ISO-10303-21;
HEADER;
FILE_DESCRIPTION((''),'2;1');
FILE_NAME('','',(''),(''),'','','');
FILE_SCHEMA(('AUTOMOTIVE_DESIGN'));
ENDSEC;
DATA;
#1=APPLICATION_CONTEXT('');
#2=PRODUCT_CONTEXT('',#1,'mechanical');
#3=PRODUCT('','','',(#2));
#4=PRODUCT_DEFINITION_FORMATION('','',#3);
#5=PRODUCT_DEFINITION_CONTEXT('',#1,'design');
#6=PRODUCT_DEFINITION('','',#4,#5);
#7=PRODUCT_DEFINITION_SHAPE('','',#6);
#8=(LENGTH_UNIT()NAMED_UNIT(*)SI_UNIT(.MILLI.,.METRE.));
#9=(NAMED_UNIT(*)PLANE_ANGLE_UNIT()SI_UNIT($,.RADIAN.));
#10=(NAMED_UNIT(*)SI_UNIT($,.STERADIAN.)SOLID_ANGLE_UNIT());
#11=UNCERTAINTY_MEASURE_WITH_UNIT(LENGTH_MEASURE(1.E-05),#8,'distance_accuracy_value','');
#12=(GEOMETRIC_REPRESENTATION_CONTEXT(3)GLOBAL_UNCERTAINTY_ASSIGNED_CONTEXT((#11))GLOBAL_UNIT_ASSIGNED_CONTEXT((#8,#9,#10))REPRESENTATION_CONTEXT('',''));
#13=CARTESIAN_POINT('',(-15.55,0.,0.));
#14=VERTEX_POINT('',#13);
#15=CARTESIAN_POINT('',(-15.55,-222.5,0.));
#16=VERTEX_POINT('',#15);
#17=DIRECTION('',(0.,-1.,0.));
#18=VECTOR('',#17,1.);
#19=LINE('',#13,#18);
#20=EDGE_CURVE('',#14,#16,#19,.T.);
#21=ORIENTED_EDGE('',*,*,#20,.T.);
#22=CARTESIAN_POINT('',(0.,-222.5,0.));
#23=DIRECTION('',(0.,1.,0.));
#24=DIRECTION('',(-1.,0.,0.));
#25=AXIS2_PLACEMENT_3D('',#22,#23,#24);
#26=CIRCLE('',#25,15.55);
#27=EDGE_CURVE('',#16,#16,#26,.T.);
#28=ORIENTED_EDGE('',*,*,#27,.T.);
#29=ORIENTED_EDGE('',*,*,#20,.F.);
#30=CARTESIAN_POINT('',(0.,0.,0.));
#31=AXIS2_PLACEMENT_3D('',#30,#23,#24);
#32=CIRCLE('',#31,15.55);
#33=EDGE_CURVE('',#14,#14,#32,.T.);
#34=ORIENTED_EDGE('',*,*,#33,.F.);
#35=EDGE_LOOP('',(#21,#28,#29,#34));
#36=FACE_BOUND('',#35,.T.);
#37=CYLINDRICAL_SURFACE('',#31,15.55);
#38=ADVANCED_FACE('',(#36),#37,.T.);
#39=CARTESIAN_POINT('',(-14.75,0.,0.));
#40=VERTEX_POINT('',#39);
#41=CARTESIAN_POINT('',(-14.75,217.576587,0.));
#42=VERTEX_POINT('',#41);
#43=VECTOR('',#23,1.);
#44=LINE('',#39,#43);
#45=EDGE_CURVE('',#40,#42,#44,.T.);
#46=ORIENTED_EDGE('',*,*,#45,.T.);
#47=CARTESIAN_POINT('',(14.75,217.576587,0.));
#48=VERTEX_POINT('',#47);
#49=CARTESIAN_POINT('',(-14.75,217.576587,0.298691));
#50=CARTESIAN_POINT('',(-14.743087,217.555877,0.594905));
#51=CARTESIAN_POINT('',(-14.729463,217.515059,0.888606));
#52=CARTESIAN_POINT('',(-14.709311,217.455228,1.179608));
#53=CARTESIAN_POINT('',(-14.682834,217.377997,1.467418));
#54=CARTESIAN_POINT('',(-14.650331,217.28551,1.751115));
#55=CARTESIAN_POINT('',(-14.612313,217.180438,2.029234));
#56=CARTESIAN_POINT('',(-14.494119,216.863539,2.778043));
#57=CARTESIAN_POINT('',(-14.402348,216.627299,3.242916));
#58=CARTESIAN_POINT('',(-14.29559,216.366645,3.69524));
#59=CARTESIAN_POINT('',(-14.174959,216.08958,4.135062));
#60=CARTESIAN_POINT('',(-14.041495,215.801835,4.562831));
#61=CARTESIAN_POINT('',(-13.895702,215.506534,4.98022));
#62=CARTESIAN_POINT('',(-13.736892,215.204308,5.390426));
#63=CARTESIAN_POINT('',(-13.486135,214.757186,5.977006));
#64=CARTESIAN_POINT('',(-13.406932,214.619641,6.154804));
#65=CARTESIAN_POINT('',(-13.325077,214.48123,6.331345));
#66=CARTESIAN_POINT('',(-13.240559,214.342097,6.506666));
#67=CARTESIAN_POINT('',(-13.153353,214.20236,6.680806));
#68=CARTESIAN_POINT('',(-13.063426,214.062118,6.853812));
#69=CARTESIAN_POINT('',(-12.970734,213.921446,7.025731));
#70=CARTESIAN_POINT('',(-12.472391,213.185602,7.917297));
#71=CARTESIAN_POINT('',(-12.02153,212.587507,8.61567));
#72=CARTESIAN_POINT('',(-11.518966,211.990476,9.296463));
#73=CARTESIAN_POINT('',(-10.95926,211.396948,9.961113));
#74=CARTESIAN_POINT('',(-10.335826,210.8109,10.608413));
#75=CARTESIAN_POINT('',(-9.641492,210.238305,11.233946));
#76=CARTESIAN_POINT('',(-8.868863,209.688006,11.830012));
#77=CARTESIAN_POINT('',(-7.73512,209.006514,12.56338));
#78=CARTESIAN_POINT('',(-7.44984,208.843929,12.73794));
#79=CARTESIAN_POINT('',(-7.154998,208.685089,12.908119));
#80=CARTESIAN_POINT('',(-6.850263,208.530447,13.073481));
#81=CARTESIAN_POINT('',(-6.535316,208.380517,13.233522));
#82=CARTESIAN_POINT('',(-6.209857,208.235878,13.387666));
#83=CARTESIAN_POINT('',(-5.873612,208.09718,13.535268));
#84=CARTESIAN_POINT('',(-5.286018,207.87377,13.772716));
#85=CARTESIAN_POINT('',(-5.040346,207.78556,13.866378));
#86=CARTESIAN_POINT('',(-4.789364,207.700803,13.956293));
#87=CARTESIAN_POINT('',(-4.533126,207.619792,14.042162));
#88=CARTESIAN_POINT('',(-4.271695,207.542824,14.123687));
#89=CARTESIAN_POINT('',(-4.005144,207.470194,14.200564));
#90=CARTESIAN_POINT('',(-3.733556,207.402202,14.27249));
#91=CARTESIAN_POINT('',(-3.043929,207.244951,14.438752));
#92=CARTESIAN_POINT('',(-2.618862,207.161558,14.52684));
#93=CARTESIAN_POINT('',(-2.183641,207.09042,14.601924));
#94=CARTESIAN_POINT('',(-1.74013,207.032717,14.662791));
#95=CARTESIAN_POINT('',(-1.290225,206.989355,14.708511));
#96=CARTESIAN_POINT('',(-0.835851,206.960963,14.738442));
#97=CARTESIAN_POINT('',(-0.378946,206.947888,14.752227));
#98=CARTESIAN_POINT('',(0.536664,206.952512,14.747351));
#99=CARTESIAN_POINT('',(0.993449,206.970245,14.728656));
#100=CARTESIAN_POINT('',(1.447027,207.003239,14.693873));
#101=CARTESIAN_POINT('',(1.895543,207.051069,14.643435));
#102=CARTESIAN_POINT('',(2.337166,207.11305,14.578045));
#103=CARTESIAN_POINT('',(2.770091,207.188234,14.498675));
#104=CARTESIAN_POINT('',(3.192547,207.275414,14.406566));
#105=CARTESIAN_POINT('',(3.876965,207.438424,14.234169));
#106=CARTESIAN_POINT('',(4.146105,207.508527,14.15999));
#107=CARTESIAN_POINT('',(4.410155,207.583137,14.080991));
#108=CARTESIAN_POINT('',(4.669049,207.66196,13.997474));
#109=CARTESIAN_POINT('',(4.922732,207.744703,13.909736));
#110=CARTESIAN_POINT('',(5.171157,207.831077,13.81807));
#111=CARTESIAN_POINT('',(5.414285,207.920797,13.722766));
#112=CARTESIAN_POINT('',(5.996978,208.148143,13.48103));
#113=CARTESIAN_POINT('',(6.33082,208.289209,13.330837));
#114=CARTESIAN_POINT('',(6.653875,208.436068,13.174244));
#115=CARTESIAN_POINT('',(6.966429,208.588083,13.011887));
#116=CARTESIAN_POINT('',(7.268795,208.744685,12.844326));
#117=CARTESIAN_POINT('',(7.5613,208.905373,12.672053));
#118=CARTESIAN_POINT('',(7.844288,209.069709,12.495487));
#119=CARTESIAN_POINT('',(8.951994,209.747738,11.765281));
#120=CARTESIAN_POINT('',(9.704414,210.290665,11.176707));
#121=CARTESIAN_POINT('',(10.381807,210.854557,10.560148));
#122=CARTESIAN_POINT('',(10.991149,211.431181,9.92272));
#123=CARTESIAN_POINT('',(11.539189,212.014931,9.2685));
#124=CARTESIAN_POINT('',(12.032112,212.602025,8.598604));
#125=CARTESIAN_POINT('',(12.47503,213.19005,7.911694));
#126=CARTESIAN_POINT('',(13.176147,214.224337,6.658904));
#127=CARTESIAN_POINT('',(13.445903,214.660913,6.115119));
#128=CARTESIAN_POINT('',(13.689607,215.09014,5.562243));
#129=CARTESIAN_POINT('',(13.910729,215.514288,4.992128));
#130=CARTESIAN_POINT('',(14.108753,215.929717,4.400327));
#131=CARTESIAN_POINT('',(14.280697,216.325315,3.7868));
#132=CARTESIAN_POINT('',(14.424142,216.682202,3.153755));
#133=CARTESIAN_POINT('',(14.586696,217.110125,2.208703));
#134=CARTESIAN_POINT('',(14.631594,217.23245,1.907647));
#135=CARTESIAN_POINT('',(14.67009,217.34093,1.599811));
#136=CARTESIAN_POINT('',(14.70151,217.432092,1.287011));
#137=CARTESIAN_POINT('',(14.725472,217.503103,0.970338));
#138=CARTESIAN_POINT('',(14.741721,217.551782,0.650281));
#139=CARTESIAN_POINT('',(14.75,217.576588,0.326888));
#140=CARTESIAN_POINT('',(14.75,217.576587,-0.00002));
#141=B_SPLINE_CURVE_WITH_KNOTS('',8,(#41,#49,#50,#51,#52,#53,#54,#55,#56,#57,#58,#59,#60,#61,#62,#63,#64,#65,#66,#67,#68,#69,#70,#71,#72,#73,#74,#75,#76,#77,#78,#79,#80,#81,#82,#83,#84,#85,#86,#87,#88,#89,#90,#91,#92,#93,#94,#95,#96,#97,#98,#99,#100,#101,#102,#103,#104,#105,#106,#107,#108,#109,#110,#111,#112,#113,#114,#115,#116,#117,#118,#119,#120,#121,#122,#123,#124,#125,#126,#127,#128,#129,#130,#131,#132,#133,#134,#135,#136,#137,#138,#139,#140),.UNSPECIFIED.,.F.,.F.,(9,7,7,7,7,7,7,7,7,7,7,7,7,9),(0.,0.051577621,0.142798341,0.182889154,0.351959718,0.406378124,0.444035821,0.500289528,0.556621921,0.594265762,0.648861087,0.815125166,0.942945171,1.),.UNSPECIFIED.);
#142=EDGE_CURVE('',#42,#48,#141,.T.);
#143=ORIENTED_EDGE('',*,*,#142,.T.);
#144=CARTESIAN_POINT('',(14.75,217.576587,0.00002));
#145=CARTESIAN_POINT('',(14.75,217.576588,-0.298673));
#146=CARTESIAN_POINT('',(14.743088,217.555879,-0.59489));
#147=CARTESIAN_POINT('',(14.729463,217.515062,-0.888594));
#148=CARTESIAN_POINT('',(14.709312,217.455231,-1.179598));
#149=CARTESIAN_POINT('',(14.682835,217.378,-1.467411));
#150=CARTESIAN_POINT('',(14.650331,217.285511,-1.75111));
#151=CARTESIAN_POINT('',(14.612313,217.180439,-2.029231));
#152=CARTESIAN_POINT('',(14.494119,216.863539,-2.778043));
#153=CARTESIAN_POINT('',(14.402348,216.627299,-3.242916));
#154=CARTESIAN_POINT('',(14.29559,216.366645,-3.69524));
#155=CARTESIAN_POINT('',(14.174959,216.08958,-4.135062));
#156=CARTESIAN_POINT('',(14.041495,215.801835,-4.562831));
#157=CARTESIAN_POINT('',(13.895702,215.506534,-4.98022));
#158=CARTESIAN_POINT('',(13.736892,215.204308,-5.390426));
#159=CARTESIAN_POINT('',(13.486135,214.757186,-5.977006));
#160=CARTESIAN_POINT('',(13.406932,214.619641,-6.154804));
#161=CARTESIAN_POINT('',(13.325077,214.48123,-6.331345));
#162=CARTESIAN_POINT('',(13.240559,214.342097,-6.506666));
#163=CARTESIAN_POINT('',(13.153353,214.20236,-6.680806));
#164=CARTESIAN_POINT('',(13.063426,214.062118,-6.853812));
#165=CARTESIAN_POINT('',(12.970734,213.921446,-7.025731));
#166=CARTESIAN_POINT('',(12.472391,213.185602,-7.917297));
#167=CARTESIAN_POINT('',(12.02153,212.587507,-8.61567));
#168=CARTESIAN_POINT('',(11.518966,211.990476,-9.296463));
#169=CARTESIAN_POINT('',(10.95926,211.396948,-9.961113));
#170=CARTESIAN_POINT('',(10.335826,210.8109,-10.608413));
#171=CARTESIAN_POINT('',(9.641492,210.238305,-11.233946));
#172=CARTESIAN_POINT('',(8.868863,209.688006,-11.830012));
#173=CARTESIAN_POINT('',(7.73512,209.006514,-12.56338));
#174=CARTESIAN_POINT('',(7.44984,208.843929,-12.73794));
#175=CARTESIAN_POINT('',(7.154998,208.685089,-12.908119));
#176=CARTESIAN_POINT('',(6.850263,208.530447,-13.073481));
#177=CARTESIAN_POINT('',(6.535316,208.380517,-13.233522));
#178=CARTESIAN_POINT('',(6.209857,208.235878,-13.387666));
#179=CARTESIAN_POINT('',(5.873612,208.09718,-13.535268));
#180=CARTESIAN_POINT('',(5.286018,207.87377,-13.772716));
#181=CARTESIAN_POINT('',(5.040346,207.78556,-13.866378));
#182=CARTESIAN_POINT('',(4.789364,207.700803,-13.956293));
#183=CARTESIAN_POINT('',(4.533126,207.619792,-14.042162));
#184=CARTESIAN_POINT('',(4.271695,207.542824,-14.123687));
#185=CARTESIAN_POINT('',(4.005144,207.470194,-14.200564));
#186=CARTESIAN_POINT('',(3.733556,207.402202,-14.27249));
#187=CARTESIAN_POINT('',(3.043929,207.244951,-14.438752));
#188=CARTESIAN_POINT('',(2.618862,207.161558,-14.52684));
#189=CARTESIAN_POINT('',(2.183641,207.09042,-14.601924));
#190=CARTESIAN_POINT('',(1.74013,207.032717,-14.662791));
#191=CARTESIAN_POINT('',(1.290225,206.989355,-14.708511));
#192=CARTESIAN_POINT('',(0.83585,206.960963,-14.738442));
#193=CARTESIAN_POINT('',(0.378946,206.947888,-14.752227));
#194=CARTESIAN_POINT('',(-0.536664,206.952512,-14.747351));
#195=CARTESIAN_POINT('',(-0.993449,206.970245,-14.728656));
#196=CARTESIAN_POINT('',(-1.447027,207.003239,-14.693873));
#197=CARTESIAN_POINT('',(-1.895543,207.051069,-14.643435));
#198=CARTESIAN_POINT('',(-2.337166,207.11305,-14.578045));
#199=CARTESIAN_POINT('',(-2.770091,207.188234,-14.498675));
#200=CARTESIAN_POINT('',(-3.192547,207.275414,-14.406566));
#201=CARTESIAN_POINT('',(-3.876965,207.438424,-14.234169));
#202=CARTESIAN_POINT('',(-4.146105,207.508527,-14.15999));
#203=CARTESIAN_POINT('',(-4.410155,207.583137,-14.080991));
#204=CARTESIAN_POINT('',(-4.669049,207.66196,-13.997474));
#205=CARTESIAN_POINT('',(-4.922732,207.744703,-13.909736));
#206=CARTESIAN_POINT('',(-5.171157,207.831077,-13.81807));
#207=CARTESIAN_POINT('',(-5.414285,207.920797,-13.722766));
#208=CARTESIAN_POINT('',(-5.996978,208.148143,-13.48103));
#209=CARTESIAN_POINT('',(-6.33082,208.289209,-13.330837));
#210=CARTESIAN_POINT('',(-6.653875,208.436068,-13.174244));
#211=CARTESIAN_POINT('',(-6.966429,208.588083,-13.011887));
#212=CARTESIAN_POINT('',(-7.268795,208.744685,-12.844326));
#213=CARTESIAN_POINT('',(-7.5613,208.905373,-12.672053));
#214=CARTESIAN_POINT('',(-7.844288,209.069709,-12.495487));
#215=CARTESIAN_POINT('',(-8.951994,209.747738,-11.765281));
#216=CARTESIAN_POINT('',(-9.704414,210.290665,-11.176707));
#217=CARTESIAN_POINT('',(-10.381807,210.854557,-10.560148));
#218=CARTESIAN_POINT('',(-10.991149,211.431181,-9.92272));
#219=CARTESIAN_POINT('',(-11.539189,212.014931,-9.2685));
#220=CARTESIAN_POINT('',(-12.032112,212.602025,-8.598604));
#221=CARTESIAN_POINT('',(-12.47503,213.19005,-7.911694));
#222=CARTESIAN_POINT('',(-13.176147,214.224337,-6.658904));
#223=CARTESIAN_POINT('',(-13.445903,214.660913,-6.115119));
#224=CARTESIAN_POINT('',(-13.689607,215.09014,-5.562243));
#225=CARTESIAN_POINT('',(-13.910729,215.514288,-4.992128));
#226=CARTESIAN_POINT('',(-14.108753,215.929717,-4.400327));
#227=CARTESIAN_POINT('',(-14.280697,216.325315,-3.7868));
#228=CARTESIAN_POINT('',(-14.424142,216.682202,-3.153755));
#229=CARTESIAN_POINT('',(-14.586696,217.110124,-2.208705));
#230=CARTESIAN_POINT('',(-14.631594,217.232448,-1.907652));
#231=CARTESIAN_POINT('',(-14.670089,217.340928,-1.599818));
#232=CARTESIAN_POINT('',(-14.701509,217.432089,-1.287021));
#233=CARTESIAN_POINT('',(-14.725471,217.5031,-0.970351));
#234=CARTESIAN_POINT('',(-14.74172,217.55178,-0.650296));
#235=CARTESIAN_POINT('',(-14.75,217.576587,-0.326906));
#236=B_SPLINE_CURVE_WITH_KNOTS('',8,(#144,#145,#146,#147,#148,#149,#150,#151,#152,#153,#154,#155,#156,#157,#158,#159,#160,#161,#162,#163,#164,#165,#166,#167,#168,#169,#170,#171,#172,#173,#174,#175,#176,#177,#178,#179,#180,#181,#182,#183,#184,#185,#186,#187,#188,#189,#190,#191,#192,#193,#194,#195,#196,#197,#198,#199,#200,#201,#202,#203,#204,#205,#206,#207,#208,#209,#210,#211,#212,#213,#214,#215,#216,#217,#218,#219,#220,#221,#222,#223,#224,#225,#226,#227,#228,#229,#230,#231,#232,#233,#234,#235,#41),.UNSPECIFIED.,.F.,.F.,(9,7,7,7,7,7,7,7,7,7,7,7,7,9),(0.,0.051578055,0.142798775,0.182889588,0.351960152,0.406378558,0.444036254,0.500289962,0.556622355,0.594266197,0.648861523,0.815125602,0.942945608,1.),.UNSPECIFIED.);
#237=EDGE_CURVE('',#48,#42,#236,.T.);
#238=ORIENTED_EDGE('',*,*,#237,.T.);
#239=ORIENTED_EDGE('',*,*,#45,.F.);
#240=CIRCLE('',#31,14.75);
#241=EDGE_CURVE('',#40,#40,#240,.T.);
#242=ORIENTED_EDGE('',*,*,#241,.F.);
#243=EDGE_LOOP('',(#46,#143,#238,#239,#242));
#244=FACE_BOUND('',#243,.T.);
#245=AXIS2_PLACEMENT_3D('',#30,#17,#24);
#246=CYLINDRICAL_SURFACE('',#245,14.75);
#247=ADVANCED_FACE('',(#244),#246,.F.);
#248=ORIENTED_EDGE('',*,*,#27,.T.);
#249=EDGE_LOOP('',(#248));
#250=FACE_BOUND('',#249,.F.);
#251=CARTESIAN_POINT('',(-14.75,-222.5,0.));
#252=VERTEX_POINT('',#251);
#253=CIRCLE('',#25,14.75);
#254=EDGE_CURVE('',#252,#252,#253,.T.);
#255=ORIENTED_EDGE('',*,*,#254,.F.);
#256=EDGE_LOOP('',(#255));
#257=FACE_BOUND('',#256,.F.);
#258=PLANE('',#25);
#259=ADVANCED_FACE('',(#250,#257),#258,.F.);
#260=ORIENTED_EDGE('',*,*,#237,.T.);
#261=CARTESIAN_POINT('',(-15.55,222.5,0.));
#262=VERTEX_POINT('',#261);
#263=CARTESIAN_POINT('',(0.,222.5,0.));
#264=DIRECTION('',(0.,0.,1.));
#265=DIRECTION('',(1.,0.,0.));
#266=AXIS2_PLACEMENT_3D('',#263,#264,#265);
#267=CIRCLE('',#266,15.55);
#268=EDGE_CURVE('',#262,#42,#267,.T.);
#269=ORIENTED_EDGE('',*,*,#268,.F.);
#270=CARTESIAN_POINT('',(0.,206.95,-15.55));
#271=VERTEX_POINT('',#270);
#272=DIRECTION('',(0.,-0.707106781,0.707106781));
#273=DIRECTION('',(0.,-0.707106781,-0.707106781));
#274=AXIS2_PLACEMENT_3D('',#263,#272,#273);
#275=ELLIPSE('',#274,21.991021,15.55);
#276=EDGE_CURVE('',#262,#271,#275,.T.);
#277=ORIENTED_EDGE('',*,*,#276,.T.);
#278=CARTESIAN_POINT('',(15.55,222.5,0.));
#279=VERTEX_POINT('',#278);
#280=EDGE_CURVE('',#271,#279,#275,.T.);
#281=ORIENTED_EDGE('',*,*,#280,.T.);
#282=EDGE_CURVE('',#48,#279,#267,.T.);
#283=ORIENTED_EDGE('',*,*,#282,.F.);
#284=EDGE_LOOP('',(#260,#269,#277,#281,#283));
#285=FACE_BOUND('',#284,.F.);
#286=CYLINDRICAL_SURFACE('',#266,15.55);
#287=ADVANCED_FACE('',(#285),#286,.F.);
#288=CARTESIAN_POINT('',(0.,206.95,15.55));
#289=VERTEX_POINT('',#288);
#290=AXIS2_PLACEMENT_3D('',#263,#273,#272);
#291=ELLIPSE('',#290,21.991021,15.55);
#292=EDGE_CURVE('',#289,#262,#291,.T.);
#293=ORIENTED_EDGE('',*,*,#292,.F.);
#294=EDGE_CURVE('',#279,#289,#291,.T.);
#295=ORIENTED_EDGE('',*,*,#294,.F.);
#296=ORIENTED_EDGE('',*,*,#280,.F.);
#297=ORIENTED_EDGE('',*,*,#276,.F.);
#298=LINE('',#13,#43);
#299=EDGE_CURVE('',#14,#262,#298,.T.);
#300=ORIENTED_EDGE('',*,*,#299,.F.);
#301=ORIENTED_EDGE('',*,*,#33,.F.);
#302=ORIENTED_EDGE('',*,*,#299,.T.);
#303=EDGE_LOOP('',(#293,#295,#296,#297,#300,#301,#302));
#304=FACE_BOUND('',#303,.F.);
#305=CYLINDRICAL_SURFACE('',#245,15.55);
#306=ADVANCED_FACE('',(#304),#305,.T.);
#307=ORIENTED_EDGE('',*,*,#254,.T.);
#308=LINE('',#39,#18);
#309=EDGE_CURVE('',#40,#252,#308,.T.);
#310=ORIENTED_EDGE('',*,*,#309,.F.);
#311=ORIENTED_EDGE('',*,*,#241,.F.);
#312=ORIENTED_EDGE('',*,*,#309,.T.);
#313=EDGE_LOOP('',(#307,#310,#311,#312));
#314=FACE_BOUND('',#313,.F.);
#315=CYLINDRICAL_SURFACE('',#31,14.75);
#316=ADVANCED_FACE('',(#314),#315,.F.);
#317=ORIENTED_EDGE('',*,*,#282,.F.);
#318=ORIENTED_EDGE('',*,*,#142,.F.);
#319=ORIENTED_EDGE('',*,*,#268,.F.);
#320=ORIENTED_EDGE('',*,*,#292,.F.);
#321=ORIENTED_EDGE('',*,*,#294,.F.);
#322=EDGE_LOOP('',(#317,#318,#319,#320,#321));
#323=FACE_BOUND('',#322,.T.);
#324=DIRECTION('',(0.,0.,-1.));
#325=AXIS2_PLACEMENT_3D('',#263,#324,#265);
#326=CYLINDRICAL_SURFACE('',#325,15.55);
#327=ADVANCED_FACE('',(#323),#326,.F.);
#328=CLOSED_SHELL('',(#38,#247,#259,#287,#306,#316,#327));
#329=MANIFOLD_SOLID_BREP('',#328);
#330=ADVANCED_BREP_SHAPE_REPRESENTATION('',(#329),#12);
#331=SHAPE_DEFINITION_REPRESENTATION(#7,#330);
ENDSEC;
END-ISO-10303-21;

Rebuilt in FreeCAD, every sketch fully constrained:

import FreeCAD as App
import Part
import Sketcher

doc = App.newDocument("Part")
params = doc.addObject("Spreadsheet::Sheet", "Params")
for row, (alias, value) in enumerate([
    ("sketch1_diameter", "31.1 mm"),
    ("sketch1_diameter2", "29.5 mm"),
    ("pad1_length", "445 mm"),
    ("sketch2_diameter", "31.1 mm"),
    ("pocket1_length", "200 mm"),
], start=1):
    params.set(f"A{row}", alias)
    params.set(f"B{row}", "=" + value)
    params.setAlias(f"B{row}", alias)

body = doc.addObject("PartDesign::Body", "Body")

sketch1 = doc.addObject("Sketcher::SketchObject", "Sketch")
body.addObject(sketch1)
sketch1.AttachmentSupport = (doc.XZ_Plane, [""])
sketch1.MapMode = "FlatFace"
sketch1.addGeometry(Part.Circle(App.Vector(0, 0, 0), App.Vector(0, 0, 1), 16), False)
sketch1.addGeometry(Part.Circle(App.Vector(0, 0, 0), App.Vector(0, 0, 1), 15), False)
sketch1.addConstraint(Sketcher.Constraint("Coincident", 0, 3, -1, 1))
sketch1.addConstraint(Sketcher.Constraint("Coincident", 1, 3, -1, 1))
sketch1.addConstraint(Sketcher.Constraint("Diameter", 0, 31.1))
sketch1.addConstraint(Sketcher.Constraint("Diameter", 1, 29.5))
sketch1.setExpression("Constraints[2]", "Params.sketch1_diameter")
sketch1.setExpression("Constraints[3]", "Params.sketch1_diameter2")
pad1 = doc.addObject("PartDesign::Pad", "Pad")
body.addObject(pad1)
pad1.Profile = sketch1
pad1.setExpression("Length", "Params.pad1_length")
pad1.Midplane = True

sketch2 = doc.addObject("Sketcher::SketchObject", "Sketch001")
body.addObject(sketch2)
sketch2.AttachmentSupport = (doc.XY_Plane, [""])
sketch2.MapMode = "FlatFace"
sketch2.addGeometry(Part.Circle(App.Vector(0, 222, 0), App.Vector(0, 0, 1), 16), False)
sketch2.addConstraint(Sketcher.Constraint("PointOnObject", 0, 3, -2))
sketch2.addConstraint(Sketcher.Constraint("Diameter", 0, 31.1))
sketch2.addConstraint(Sketcher.Constraint("DistanceY", -1, 1, 0, 3, 222.5))
sketch2.setExpression("Constraints[1]", "Params.sketch2_diameter")
pocket1 = doc.addObject("PartDesign::Pocket", "Pocket")
body.addObject(pocket1)
pocket1.Profile = sketch2
pocket1.setExpression("Length", "Params.pocket1_length")
pocket1.Midplane = True

doc.recompute()
